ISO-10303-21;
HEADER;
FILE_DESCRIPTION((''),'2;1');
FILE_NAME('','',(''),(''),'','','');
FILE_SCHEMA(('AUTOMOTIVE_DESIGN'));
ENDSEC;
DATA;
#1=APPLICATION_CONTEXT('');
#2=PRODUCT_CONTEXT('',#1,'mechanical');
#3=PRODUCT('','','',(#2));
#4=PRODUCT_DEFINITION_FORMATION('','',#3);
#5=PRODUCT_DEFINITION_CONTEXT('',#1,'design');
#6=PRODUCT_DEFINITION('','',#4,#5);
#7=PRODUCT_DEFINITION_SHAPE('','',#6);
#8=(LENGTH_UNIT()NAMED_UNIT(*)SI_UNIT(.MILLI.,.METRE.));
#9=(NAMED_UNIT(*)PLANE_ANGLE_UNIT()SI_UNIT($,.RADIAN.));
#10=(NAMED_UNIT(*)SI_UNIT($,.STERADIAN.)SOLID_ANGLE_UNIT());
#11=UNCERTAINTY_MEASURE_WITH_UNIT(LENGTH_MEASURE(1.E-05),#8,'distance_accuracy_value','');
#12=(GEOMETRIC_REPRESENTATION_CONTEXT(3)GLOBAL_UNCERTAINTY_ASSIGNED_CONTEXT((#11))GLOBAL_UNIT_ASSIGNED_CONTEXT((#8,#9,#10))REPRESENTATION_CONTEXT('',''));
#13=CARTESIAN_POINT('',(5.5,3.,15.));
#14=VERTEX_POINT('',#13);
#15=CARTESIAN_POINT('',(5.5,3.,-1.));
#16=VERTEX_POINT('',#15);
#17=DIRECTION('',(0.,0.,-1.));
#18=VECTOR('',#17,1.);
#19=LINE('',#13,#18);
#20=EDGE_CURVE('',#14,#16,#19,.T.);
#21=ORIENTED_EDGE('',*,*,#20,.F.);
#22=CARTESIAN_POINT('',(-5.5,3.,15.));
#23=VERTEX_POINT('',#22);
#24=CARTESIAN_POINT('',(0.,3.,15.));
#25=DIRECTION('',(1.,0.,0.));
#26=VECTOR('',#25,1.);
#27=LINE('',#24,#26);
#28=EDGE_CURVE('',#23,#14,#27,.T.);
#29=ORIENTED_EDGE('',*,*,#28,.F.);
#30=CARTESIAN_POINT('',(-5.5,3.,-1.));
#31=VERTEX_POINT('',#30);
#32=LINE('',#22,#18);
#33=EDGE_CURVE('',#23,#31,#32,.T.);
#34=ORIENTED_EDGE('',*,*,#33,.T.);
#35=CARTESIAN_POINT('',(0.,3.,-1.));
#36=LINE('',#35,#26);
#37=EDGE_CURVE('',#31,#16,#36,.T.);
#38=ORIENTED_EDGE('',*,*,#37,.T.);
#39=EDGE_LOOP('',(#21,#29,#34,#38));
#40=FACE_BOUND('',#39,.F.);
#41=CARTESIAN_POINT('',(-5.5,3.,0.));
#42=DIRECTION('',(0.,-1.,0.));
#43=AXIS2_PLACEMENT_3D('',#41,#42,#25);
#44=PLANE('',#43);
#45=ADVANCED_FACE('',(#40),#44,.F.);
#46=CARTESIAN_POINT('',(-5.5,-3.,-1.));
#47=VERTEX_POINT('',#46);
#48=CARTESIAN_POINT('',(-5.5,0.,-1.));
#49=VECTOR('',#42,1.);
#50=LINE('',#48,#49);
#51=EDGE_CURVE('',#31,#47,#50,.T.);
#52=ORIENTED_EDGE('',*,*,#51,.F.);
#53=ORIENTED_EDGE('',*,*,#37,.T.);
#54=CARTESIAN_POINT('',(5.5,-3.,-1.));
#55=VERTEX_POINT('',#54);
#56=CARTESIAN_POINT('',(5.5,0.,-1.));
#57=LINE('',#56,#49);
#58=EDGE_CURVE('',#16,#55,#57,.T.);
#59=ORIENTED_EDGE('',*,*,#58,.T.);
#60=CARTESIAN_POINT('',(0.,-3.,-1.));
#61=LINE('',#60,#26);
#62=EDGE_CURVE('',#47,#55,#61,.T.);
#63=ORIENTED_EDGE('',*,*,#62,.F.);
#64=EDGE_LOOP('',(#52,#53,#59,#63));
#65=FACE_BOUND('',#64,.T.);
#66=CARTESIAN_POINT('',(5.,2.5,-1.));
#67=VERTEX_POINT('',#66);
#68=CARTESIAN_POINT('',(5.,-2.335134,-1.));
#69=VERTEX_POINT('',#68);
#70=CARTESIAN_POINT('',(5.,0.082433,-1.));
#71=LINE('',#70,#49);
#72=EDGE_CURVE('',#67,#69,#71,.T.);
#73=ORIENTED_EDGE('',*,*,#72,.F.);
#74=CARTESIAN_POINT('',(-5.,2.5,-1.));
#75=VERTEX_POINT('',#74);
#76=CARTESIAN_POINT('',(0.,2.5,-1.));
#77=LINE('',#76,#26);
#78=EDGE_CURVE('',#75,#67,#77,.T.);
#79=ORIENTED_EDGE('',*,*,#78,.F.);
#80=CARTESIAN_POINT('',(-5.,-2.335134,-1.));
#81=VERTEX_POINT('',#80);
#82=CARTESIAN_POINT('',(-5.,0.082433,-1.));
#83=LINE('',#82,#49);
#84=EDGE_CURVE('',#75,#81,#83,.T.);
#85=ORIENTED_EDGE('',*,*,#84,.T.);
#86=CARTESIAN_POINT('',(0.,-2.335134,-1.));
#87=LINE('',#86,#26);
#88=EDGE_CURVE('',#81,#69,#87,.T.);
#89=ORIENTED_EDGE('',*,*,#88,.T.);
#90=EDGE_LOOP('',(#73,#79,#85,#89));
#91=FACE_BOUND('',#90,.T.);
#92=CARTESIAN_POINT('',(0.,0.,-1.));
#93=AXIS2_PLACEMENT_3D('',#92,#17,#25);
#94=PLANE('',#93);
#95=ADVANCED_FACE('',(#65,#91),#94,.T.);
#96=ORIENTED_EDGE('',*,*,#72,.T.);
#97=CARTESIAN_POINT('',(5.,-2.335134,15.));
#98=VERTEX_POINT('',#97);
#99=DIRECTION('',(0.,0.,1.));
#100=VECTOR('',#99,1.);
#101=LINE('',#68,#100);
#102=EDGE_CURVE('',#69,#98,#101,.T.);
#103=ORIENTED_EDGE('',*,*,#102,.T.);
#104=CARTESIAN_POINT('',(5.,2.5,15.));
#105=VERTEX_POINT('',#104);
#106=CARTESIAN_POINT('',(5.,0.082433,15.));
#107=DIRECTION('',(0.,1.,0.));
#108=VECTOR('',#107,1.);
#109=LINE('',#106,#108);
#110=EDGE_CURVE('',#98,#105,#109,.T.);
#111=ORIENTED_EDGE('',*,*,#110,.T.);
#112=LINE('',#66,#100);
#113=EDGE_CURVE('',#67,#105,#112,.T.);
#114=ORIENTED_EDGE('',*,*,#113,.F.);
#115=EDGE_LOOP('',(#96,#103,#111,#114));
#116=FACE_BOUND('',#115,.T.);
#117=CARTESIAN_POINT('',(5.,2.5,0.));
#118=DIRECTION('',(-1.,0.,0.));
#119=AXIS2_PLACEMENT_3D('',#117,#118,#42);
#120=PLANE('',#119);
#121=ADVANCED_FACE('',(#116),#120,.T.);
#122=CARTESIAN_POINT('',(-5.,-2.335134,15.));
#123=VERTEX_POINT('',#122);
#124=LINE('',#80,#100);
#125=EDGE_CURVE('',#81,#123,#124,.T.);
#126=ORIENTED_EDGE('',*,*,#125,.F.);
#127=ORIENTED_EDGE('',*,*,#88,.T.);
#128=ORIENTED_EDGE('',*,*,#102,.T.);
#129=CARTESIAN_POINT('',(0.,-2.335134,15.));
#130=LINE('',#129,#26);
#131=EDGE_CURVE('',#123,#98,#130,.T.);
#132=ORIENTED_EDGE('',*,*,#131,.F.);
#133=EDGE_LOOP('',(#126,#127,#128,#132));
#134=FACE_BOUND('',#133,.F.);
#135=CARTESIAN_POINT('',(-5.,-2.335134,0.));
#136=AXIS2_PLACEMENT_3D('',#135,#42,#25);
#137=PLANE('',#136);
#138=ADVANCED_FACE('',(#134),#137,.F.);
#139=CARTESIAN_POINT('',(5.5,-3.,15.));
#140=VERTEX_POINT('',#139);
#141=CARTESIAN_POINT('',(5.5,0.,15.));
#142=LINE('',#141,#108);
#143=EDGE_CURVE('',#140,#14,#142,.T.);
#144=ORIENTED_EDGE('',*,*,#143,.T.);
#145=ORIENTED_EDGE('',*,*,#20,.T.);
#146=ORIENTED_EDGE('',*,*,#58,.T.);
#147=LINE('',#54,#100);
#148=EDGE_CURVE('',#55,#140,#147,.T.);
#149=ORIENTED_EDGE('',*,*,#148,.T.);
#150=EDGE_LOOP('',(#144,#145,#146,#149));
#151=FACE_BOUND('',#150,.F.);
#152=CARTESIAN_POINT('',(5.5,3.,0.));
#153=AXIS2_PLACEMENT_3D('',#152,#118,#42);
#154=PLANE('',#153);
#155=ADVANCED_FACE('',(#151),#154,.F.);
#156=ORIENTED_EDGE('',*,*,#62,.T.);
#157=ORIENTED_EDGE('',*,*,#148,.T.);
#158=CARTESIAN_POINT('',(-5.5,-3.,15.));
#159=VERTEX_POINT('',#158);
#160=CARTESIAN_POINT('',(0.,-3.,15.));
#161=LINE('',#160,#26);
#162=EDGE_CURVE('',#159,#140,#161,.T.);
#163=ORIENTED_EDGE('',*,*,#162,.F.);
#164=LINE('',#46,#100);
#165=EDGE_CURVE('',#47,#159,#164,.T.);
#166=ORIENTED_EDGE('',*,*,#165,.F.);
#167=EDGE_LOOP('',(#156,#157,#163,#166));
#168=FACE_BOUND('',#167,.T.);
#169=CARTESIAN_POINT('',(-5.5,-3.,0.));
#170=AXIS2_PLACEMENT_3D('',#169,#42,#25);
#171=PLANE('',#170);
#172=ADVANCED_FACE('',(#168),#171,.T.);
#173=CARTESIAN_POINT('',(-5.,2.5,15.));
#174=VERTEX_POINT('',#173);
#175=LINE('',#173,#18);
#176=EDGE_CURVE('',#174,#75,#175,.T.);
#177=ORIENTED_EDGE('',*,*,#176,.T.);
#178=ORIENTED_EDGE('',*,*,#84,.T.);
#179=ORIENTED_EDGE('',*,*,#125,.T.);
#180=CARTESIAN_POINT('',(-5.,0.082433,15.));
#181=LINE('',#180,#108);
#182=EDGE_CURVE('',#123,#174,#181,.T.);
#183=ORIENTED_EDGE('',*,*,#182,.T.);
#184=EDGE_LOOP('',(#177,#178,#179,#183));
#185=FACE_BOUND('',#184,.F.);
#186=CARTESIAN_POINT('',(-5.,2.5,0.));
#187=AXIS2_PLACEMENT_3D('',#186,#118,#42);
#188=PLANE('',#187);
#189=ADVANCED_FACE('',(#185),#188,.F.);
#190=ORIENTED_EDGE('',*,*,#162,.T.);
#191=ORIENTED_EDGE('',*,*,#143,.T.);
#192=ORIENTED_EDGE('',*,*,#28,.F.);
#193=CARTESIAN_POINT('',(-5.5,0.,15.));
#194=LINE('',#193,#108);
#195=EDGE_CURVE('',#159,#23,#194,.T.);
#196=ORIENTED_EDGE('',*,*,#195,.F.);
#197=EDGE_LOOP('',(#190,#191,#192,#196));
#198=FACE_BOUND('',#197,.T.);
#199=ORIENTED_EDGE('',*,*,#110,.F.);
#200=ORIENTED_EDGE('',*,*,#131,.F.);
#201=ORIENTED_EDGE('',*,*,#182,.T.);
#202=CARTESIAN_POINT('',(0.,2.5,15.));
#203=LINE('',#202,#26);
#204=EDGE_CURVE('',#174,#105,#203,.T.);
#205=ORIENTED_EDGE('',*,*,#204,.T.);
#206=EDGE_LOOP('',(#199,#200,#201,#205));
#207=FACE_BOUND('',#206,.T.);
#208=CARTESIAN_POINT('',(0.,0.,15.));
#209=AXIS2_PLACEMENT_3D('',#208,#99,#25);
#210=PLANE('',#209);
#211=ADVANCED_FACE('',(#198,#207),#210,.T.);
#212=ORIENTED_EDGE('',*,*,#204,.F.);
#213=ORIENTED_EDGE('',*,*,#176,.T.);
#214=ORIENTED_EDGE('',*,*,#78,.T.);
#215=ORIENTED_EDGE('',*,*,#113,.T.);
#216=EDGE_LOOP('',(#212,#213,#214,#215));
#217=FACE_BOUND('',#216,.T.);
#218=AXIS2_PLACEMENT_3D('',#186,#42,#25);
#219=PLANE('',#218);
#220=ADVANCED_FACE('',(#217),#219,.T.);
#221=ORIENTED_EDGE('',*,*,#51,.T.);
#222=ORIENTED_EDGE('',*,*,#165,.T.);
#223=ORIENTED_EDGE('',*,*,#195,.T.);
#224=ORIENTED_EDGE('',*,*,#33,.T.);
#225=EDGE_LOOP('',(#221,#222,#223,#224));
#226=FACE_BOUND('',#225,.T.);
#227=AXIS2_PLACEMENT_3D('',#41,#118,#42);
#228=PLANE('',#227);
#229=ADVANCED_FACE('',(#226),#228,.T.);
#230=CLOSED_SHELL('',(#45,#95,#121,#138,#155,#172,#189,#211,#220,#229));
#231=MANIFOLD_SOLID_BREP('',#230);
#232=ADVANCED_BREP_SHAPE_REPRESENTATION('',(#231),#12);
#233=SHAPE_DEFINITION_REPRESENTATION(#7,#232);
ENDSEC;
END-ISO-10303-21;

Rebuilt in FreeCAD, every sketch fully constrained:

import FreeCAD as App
import Part
import Sketcher
Q = App.Units.Quantity

doc = App.newDocument("Part")
body = doc.addObject("PartDesign::Body", "Body")

sketch1 = doc.addObject("Sketcher::SketchObject", "Sketch")
body.addObject(sketch1)
sketch1.AttachmentSupport = (doc.XY_Plane, [""])
sketch1.MapMode = "FlatFace"
sketch1.addGeometry(Part.LineSegment(App.Vector(-5.5, 3, 0), App.Vector(-5.5, -3, 0)), False)
sketch1.addGeometry(Part.LineSegment(App.Vector(-5.5, -3, 0), App.Vector(5.5, -3, 0)), False)
sketch1.addGeometry(Part.LineSegment(App.Vector(5.5, -3, 0), App.Vector(5.5, 3, 0)), False)
sketch1.addGeometry(Part.LineSegment(App.Vector(5.5, 3, 0), App.Vector(-5.5, 3, 0)), False)
sketch1.addGeometry(Part.LineSegment(App.Vector(5, -2.3, 0), App.Vector(-5, -2.3, 0)), False)
sketch1.addGeometry(Part.LineSegment(App.Vector(-5, -2.3, 0), App.Vector(-5, 2.5, 0)), False)
sketch1.addGeometry(Part.LineSegment(App.Vector(-5, 2.5, 0), App.Vector(5, 2.5, 0)), False)
sketch1.addGeometry(Part.LineSegment(App.Vector(5, 2.5, 0), App.Vector(5, -2.3, 0)), False)
sketch1.addConstraint(Sketcher.Constraint("Coincident", 0, 2, 1, 1))
sketch1.addConstraint(Sketcher.Constraint("Coincident", 1, 2, 2, 1))
sketch1.addConstraint(Sketcher.Constraint("Coincident", 2, 2, 3, 1))
sketch1.addConstraint(Sketcher.Constraint("Coincident", 3, 2, 0, 1))
sketch1.addConstraint(Sketcher.Constraint("Coincident", 4, 2, 5, 1))
sketch1.addConstraint(Sketcher.Constraint("Coincident", 5, 2, 6, 1))
sketch1.addConstraint(Sketcher.Constraint("Coincident", 6, 2, 7, 1))
sketch1.addConstraint(Sketcher.Constraint("Coincident", 7, 2, 4, 1))
sketch1.addConstraint(Sketcher.Constraint("Vertical", 0))
sketch1.addConstraint(Sketcher.Constraint("Horizontal", 1))
sketch1.addConstraint(Sketcher.Constraint("Vertical", 2))
sketch1.addConstraint(Sketcher.Constraint("Horizontal", 3))
sketch1.addConstraint(Sketcher.Constraint("Horizontal", 4))
sketch1.addConstraint(Sketcher.Constraint("Vertical", 5))
sketch1.addConstraint(Sketcher.Constraint("Horizontal", 6))
sketch1.addConstraint(Sketcher.Constraint("Vertical", 7))
sketch1.addConstraint(Sketcher.Constraint("Symmetric", 0, 2, 2, 2, -1, 1))
sketch1.addConstraint(Sketcher.Constraint("DistanceX", 1, 1, 1, 2, Q("11 mm")))
sketch1.addConstraint(Sketcher.Constraint("DistanceX", 4, 2, 4, 1, Q("10 mm")))
sketch1.addConstraint(Sketcher.Constraint("DistanceY", 0, 2, 0, 1, Q("6 mm")))
sketch1.addConstraint(Sketcher.Constraint("DistanceX", 4, 2, -1, 1, Q("5 mm")))
sketch1.addConstraint(Sketcher.Constraint("DistanceY", -1, 1, 5, 2, Q("2.5 mm")))
sketch1.addConstraint(Sketcher.Constraint("DistanceY", 5, 1, 5, 2, Q("4.835134 mm")))
pad1 = doc.addObject("PartDesign::Pad", "Pad")
body.addObject(pad1)
pad1.Profile = sketch1
pad1.Length = 15

sketch2 = doc.addObject("Sketcher::SketchObject", "Sketch001")
body.addObject(sketch2)
sketch2.AttachmentSupport = (doc.XY_Plane, [""])
sketch2.MapMode = "FlatFace"
sketch2.addGeometry(Part.LineSegment(App.Vector(-5.5, -3, 0), App.Vector(-5.5, 3, 0)), False)
sketch2.addGeometry(Part.LineSegment(App.Vector(-5.5, 3, 0), App.Vector(5.5, 3, 0)), False)
sketch2.addGeometry(Part.LineSegment(App.Vector(5.5, 3, 0), App.Vector(5.5, -3, 0)), False)
sketch2.addGeometry(Part.LineSegment(App.Vector(5.5, -3, 0), App.Vector(-5.5, -3, 0)), False)
sketch2.addGeometry(Part.LineSegment(App.Vector(5, 2.5, 0), App.Vector(-5, 2.5, 0)), False)
sketch2.addGeometry(Part.LineSegment(App.Vector(-5, 2.5, 0), App.Vector(-5, -2.3, 0)), False)
sketch2.addGeometry(Part.LineSegment(App.Vector(-5, -2.3, 0), App.Vector(5, -2.3, 0)), False)
sketch2.addGeometry(Part.LineSegment(App.Vector(5, -2.3, 0), App.Vector(5, 2.5, 0)), False)
sketch2.addConstraint(Sketcher.Constraint("Coincident", 0, 2, 1, 1))
sketch2.addConstraint(Sketcher.Constraint("Coincident", 1, 2, 2, 1))
sketch2.addConstraint(Sketcher.Constraint("Coincident", 2, 2, 3, 1))
sketch2.addConstraint(Sketcher.Constraint("Coincident", 3, 2, 0, 1))
sketch2.addConstraint(Sketcher.Constraint("Coincident", 4, 2, 5, 1))
sketch2.addConstraint(Sketcher.Constraint("Coincident", 5, 2, 6, 1))
sketch2.addConstraint(Sketcher.Constraint("Coincident", 6, 2, 7, 1))
sketch2.addConstraint(Sketcher.Constraint("Coincident", 7, 2, 4, 1))
sketch2.addConstraint(Sketcher.Constraint("Vertical", 0))
sketch2.addConstraint(Sketcher.Constraint("Horizontal", 1))
sketch2.addConstraint(Sketcher.Constraint("Vertical", 2))
sketch2.addConstraint(Sketcher.Constraint("Horizontal", 3))
sketch2.addConstraint(Sketcher.Constraint("Horizontal", 4))
sketch2.addConstraint(Sketcher.Constraint("Vertical", 5))
sketch2.addConstraint(Sketcher.Constraint("Horizontal", 6))
sketch2.addConstraint(Sketcher.Constraint("Vertical", 7))
sketch2.addConstraint(Sketcher.Constraint("Symmetric", 0, 2, 2, 2, -1, 1))
sketch2.addConstraint(Sketcher.Constraint("DistanceX", 1, 1, 1, 2, Q("11 mm")))
sketch2.addConstraint(Sketcher.Constraint("DistanceX", 4, 2, 4, 1, Q("10 mm")))
sketch2.addConstraint(Sketcher.Constraint("DistanceY", 0, 1, 0, 2, Q("6 mm")))
sketch2.addConstraint(Sketcher.Constraint("DistanceX", 4, 2, -1, 1, Q("5 mm")))
sketch2.addConstraint(Sketcher.Constraint("DistanceY", -1, 1, 4, 2, Q("2.5 mm")))
sketch2.addConstraint(Sketcher.Constraint("DistanceY", 5, 2, 5, 1, Q("4.835134 mm")))
pad2 = doc.addObject("PartDesign::Pad", "Pad001")
body.addObject(pad2)
pad2.Profile = sketch2
pad2.Length = 1
pad2.Reversed = True

doc.recompute()
